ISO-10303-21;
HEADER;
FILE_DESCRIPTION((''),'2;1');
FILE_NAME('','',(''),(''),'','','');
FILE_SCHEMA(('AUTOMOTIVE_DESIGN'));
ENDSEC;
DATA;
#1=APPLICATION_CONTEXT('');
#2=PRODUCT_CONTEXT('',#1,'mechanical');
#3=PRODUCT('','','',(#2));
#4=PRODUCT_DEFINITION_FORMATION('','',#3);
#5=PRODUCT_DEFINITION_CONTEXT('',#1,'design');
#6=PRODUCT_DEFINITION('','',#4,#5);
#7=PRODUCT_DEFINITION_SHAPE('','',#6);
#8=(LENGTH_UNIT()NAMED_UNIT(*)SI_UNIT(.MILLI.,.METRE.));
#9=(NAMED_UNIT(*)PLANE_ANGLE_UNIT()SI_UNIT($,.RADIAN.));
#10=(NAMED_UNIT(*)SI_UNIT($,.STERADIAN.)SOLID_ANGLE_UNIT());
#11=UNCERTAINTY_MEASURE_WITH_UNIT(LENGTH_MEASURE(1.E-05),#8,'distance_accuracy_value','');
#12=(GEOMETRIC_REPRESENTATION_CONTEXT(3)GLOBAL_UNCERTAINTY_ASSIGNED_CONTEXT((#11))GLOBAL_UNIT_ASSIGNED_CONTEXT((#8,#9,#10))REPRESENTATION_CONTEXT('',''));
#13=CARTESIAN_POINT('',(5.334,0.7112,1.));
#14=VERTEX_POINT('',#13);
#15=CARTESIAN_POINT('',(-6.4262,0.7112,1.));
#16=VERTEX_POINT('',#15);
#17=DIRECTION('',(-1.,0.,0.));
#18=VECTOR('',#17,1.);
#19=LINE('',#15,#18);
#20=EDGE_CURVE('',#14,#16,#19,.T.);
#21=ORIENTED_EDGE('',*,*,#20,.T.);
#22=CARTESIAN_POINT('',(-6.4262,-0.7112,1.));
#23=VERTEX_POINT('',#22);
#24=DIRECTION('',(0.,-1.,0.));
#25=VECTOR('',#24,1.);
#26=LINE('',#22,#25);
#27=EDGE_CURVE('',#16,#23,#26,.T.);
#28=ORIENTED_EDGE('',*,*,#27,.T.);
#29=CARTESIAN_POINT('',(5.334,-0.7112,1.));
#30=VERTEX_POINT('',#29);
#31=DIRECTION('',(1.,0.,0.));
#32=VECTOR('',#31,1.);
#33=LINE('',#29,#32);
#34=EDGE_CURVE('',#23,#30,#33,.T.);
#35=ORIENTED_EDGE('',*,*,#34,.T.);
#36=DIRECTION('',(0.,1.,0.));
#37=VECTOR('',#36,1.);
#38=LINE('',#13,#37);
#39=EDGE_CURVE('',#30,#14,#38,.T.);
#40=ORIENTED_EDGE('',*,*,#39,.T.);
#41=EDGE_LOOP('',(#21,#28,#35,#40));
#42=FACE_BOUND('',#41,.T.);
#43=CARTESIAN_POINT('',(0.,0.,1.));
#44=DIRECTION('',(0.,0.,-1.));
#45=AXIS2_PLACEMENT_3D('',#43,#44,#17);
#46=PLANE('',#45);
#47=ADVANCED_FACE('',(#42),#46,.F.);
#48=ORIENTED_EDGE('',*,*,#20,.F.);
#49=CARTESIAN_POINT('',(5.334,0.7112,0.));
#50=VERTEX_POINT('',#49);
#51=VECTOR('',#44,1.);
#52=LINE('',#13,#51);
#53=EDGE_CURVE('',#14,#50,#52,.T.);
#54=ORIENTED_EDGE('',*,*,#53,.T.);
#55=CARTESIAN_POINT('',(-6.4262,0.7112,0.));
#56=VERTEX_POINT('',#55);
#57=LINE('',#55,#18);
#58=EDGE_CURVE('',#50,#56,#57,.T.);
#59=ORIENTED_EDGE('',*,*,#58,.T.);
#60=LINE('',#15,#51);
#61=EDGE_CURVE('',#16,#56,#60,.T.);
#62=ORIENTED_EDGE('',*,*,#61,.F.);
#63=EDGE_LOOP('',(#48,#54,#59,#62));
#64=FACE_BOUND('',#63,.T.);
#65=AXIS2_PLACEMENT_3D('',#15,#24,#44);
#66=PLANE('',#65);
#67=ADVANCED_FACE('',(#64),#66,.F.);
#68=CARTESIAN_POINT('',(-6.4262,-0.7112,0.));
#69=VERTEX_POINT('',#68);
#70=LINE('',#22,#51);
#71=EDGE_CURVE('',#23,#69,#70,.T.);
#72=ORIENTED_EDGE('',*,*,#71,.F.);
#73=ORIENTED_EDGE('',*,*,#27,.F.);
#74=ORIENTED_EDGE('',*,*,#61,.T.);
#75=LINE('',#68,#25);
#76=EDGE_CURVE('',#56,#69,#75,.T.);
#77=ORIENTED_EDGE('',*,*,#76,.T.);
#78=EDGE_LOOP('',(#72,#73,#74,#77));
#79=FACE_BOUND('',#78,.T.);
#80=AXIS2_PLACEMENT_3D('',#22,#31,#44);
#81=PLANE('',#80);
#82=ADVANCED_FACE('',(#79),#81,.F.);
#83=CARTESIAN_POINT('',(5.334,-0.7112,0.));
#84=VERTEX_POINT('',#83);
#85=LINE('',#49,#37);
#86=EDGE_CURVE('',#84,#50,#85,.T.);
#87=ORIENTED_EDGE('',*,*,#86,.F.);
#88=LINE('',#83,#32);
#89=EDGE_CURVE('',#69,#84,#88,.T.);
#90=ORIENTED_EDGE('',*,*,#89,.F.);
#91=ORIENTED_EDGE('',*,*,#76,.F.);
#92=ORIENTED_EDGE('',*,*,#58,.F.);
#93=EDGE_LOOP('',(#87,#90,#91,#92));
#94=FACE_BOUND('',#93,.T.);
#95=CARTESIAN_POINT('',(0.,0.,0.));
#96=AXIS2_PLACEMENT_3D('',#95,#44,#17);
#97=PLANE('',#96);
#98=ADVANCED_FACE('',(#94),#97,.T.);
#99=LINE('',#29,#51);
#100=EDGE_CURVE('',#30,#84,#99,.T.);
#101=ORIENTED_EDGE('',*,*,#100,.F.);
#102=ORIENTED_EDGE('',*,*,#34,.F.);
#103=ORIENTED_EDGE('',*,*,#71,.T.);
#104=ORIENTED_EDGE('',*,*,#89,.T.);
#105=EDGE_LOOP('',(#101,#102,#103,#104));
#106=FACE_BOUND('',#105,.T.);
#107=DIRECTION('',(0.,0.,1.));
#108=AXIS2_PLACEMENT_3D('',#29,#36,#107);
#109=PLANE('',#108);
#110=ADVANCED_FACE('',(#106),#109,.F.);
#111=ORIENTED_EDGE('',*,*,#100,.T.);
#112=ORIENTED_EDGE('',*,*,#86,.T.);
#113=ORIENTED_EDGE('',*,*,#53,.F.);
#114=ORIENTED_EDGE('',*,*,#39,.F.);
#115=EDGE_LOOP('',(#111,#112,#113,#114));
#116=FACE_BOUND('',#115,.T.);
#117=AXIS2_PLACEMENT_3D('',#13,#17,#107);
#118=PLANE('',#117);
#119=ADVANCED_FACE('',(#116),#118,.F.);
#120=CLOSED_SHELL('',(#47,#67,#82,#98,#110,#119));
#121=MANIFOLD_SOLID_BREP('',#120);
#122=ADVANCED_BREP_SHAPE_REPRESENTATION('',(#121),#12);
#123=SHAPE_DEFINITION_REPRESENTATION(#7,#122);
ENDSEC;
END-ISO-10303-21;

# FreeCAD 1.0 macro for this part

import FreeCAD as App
import Part
import Sketcher
Q = App.Units.Quantity


def add_polygon(sketch, points):
    """Adds a closed chain of lines whose ends are joined by coincident constraints."""
    first, n = sketch.GeometryCount, len(points)
    for a, b in zip(points, points[1:] + points[:1]):
        sketch.addGeometry(Part.LineSegment(App.Vector(*a, 0), App.Vector(*b, 0)), False)
    for i in range(n):
        sketch.addConstraint(Sketcher.Constraint("Coincident", first + i, 2, first + (i + 1) % n, 1))

doc = App.newDocument("Part")
body = doc.addObject("PartDesign::Body", "Body")

# Sketch on XY plane
sketch1 = body.newObject("Sketcher::SketchObject", "Sketch")
sketch1.AttachmentSupport = (doc.getObject("XY_Plane"), [""])
sketch1.MapMode = "FlatFace"
add_polygon(sketch1, [(-6.4, 0.7), (-6.4, -0.7), (5.3, -0.7), (5.3, 0.7)])  # lines 0-3
sketch1.addConstraint(Sketcher.Constraint("Vertical", 0))
sketch1.addConstraint(Sketcher.Constraint("Horizontal", 1))
sketch1.addConstraint(Sketcher.Constraint("Vertical", 2))
sketch1.addConstraint(Sketcher.Constraint("Horizontal", 3))
sketch1.addConstraint(Sketcher.Constraint("DistanceX", 1, 1, 1, 2, Q("0.463 in")))
sketch1.addConstraint(Sketcher.Constraint("DistanceY", 0, 2, 0, 1, Q("0.056 in")))
sketch1.addConstraint(Sketcher.Constraint("DistanceX", -1, 1, 1, 2, Q("0.21 in")))
sketch1.addConstraint(Sketcher.Constraint("DistanceY", 0, 2, -1, 1, Q("0.028 in")))
pad1 = body.newObject("PartDesign::Pad", "Pad")
pad1.Profile = sketch1
pad1.Length = 1

doc.recompute()
